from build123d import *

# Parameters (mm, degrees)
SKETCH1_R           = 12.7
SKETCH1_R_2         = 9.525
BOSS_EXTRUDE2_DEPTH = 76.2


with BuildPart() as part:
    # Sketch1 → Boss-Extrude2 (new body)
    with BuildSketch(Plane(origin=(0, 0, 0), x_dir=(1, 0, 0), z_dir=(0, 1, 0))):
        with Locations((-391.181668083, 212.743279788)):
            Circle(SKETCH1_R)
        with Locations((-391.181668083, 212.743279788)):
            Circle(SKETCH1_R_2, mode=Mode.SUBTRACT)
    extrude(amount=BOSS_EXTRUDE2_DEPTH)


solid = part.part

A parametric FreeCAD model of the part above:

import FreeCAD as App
import Part
import Sketcher
Q = App.Units.Quantity

doc = App.newDocument("Part")
body = doc.addObject("PartDesign::Body", "Body")

sketch1 = doc.addObject("Sketcher::SketchObject", "Sketch")
body.addObject(sketch1)
sketch1.AttachmentSupport = (doc.XZ_Plane, [""])
sketch1.MapMode = "FlatFace"
sketch1.addGeometry([
    Part.Circle(App.Vector(-391, -213, 0), App.Vector(0, 0, 1), 13),
    Part.Circle(App.Vector(-391, -213, 0), App.Vector(0, 0, 1), 10),
], False)
sketch1.addConstraint([
    Sketcher.Constraint("Coincident", 1, 3, 0, 3),
    Sketcher.Constraint("Diameter", 0, Q("1 in")),
    Sketcher.Constraint("Diameter", 1, Q("0.75 in")),
    Sketcher.Constraint("DistanceX", 0, 3, -1, 1, 391.181668),
    Sketcher.Constraint("DistanceY", 0, 3, -1, 1, 212.74328),
])
pad1 = doc.addObject("PartDesign::Pad", "Pad")
body.addObject(pad1)
pad1.Profile = sketch1
pad1.Length = Q("3 in")
pad1.Reversed = True

doc.recompute()
